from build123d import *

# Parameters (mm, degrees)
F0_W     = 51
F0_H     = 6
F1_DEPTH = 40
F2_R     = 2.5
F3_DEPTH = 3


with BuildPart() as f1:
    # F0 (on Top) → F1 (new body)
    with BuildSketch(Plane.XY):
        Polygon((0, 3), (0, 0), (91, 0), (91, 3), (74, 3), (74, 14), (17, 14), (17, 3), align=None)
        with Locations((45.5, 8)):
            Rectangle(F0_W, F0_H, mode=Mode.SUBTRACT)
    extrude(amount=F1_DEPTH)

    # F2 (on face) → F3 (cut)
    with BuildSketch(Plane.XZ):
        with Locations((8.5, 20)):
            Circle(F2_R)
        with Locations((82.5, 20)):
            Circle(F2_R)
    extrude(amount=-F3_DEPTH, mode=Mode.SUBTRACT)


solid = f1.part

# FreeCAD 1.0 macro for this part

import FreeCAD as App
import Part
import Sketcher

V = App.Vector
Q = App.Units.Quantity

doc = App.newDocument("Part")
body = doc.addObject("PartDesign::Body", "Body")

# Sketch on XY plane
sketch1 = body.newObject("Sketcher::SketchObject", "Sketch")
sketch1.AttachmentSupport = (doc.getObject("XY_Plane"), [""])
sketch1.MapMode = "FlatFace"
sketch1.addGeometry([
    Part.LineSegment(V(0, 3, 0), V(0, 0, 0)),  # 0
    Part.LineSegment(V(0, 0, 0), V(91, 0, 0)),  # 1
    Part.LineSegment(V(91, 0, 0), V(91, 3, 0)),  # 2
    Part.LineSegment(V(91, 3, 0), V(74, 3, 0)),  # 3
    Part.LineSegment(V(74, 3, 0), V(74, 14, 0)),  # 4
    Part.LineSegment(V(74, 14, 0), V(17, 14, 0)),  # 5
    Part.LineSegment(V(17, 14, 0), V(17, 3, 0)),  # 6
    Part.LineSegment(V(17, 3, 0), V(0, 3, 0)),  # 7
    Part.LineSegment(V(71, 5, 0), V(20, 5, 0)),  # 8
    Part.LineSegment(V(20, 5, 0), V(20, 11, 0)),  # 9
    Part.LineSegment(V(20, 11, 0), V(71, 11, 0)),  # 10
    Part.LineSegment(V(71, 11, 0), V(71, 5, 0)),  # 11
], False)
sketch1.addConstraint([
    Sketcher.Constraint("Coincident", 0, 2, 1, 1),
    Sketcher.Constraint("Coincident", 1, 2, 2, 1),
    Sketcher.Constraint("Coincident", 2, 2, 3, 1),
    Sketcher.Constraint("Coincident", 3, 2, 4, 1),
    Sketcher.Constraint("Coincident", 4, 2, 5, 1),
    Sketcher.Constraint("Coincident", 5, 2, 6, 1),
    Sketcher.Constraint("Coincident", 6, 2, 7, 1),
    Sketcher.Constraint("Coincident", 7, 2, 0, 1),
    Sketcher.Constraint("Coincident", 8, 2, 9, 1),
    Sketcher.Constraint("Coincident", 9, 2, 10, 1),
    Sketcher.Constraint("Coincident", 10, 2, 11, 1),
    Sketcher.Constraint("Coincident", 11, 2, 8, 1),
    Sketcher.Constraint("Vertical", 0),
    Sketcher.Constraint("Horizontal", 1),
    Sketcher.Constraint("Vertical", 2),
    Sketcher.Constraint("Horizontal", 3),
    Sketcher.Constraint("Vertical", 4),
    Sketcher.Constraint("Horizontal", 5),
    Sketcher.Constraint("Vertical", 6),
    Sketcher.Constraint("Horizontal", 7),
    Sketcher.Constraint("Horizontal", 8),
    Sketcher.Constraint("Vertical", 9),
    Sketcher.Constraint("Horizontal", 10),
    Sketcher.Constraint("Vertical", 11),
    Sketcher.Constraint("Coincident", 0, 2, -1, 1),
    Sketcher.Constraint("Horizontal", 3, 2, 6, 2),
    Sketcher.Constraint("Equal", 3, 7),
    Sketcher.Constraint("DistanceX", 1, 1, 1, 2, Q("91 mm")),
    Sketcher.Constraint("DistanceX", 3, 2, 3, 1, Q("17 mm")),
    Sketcher.Constraint("DistanceX", 8, 2, 8, 1, Q("51 mm")),
    Sketcher.Constraint("DistanceY", 0, 2, 0, 1, Q("3 mm")),
    Sketcher.Constraint("DistanceY", 4, 1, 4, 2, Q("11 mm")),
    Sketcher.Constraint("DistanceY", 9, 1, 9, 2, Q("6 mm")),
    Sketcher.Constraint("DistanceX", -1, 1, 8, 2, Q("20 mm")),
    Sketcher.Constraint("DistanceY", -1, 1, 8, 2, Q("5 mm")),
])
pad1 = body.newObject("PartDesign::Pad", "Pad")
pad1.Profile = sketch1
pad1.Length = 40

# Sketch on XZ plane
sketch2 = body.newObject("Sketcher::SketchObject", "Sketch001")
sketch2.AttachmentSupport = (doc.getObject("XZ_Plane"), [""])
sketch2.MapMode = "FlatFace"
sketch2.addGeometry([
    Part.Circle(V(8.5, 20, 0), V(0, 0, 1), 2.5),
    Part.Circle(V(82.5, 20, 0), V(0, 0, 1), 2.5),
], False)
sketch2.addConstraint([
    Sketcher.Constraint("Equal", 0, 1),
    Sketcher.Constraint("Horizontal", 0, 3, 1, 3),
    Sketcher.Constraint("Diameter", 0, Q("5 mm")),
    Sketcher.Constraint("DistanceY", -1, 1, 0, 3, Q("20 mm")),
    Sketcher.Constraint("DistanceX", 0, 3, 1, 3, Q("74 mm")),
    Sketcher.Constraint("DistanceX", -1, 1, 0, 3, Q("8.5 mm")),
])
pocket1 = body.newObject("PartDesign::Pocket", "Pocket")
pocket1.Profile = sketch2
pocket1.Length = 3

doc.recompute()
